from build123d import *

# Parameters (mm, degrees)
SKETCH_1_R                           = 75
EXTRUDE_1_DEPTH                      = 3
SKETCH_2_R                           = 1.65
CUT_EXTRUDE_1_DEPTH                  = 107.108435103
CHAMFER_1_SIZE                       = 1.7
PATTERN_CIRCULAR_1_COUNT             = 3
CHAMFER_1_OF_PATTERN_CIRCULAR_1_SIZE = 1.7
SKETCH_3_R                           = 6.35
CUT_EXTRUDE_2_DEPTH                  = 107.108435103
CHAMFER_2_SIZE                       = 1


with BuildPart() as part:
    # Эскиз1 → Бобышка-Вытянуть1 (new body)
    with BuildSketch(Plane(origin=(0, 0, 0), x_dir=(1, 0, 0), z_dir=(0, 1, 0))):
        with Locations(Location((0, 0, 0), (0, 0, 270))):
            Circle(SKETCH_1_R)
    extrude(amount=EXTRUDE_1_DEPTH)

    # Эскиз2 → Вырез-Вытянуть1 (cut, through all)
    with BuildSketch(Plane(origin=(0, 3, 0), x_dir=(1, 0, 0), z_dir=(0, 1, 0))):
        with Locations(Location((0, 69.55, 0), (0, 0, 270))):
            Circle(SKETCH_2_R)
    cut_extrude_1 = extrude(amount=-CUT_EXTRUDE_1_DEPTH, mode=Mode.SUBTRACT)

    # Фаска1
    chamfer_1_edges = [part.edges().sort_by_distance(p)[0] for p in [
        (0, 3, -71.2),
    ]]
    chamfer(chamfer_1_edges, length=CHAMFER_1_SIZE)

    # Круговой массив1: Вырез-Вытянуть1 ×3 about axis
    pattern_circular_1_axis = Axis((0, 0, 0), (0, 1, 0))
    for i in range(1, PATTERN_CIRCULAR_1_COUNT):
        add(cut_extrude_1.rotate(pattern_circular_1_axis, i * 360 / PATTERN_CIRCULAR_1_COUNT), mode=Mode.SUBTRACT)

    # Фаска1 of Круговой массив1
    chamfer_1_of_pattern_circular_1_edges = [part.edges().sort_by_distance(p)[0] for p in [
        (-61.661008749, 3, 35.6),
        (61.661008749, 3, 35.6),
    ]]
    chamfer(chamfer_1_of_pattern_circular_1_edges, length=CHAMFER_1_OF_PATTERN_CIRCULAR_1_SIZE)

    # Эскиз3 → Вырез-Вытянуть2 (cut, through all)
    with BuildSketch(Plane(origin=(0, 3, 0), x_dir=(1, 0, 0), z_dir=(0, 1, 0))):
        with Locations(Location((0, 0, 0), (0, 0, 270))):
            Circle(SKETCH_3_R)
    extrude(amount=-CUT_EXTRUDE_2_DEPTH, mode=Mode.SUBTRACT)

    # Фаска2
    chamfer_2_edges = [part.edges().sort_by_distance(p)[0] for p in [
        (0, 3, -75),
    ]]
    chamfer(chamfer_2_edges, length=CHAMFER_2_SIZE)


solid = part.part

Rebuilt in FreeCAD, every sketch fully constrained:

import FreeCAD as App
import Part
import Sketcher
from FreeCAD import Vector
Q = App.Units.Quantity


def edges_at(feature, points):
    """Names of the edges that pass closest to the given points."""
    edges = feature.Shape.Edges
    near = lambda p: min(range(len(edges)), key=lambda i: edges[i].distToShape(Part.Vertex(*p))[0])
    return sorted({f"Edge{near(p) + 1}" for p in points})

doc = App.newDocument("Part")
params = doc.addObject("Spreadsheet::Sheet", "Params")
for row, (alias, value) in enumerate([
    ("sketch1_diameter", "150 mm"),
    ("pad1_length", "3 mm"),
    ("sketch2_diameter", "3.3 mm"),
    ("chamfer_size", "1.7 mm"),
    ("chamfer2_size", "1.7 mm"),
    ("sketch3_diameter", "12.7 mm"),
    ("chamfer3_size", "1 mm"),
], start=1):
    params.set(f"A{row}", alias)
    params.set(f"B{row}", "=" + value)
    params.setAlias(f"B{row}", alias)

body = doc.addObject("PartDesign::Body", "Body")

# Sketch on XZ plane
sketch1 = body.newObject("Sketcher::SketchObject", "Sketch")
sketch1.AttachmentSupport = (doc.getObject("XZ_Plane"), [""])
sketch1.MapMode = "FlatFace"
sketch1.addGeometry(Part.Circle(Vector(0, 0, 0), Vector(0, 0, 1), 75), False)
sketch1.addConstraint(Sketcher.Constraint("Coincident", 0, 3, -1, 1))
sketch1.addConstraint(Sketcher.Constraint("Diameter", 0, Q("150 mm")))
sketch1.setExpression("Constraints[1]", "Params.sketch1_diameter")
pad1 = body.newObject("PartDesign::Pad", "Pad")
pad1.Profile = sketch1
pad1.setExpression("Length", "Params.pad1_length")
pad1.Reversed = True

# Sketch on XZ plane
sketch2 = body.newObject("Sketcher::SketchObject", "Sketch001")
sketch2.AttachmentSupport = (doc.getObject("XZ_Plane"), [""])
sketch2.MapMode = "FlatFace"
sketch2.AttachmentOffset = App.Placement(Vector(0, 0, -3), App.Rotation())
sketch2.addGeometry(Part.Circle(Vector(0, -69.55, 0), Vector(0, 0, 1), 1.65), False)
sketch2.addConstraint(Sketcher.Constraint("PointOnObject", 0, 3, -2))
sketch2.addConstraint(Sketcher.Constraint("Diameter", 0, Q("3.3 mm")))
sketch2.addConstraint(Sketcher.Constraint("DistanceY", 0, 3, -1, 1, Q("69.55 mm")))
sketch2.setExpression("Constraints[1]", "Params.sketch2_diameter")
pocket1 = body.newObject("PartDesign::Pocket", "Pocket")
pocket1.Profile = sketch2
pocket1.Type = "ThroughAll"
pocket1.Reversed = True
doc.recompute()

chamfer = body.newObject("PartDesign::Chamfer", "Chamfer")
chamfer.Base = (pocket1, edges_at(pocket1, [(0, 3, -71.2)]))
chamfer.setExpression("Size", "Params.chamfer_size")
doc.recompute()

polarpattern = body.newObject("PartDesign::PolarPattern", "PolarPattern")
polarpattern.Originals = [pocket1]
polarpattern.Axis = (doc.getObject("Y_Axis"), [""])
polarpattern.Angle = 360
polarpattern.Occurrences = 3
body.Tip = polarpattern
doc.recompute()

chamfer2 = body.newObject("PartDesign::Chamfer", "Chamfer001")
chamfer2.Base = (polarpattern, edges_at(polarpattern, [(-61.661, 3, 35.6), (61.661, 3, 35.6)]))
chamfer2.setExpression("Size", "Params.chamfer2_size")

# Sketch on XZ plane
sketch3 = body.newObject("Sketcher::SketchObject", "Sketch002")
sketch3.AttachmentSupport = (doc.getObject("XZ_Plane"), [""])
sketch3.MapMode = "FlatFace"
sketch3.AttachmentOffset = App.Placement(Vector(0, 0, -3), App.Rotation())
sketch3.addGeometry(Part.Circle(Vector(0, 0, 0), Vector(0, 0, 1), 6.35), False)
sketch3.addConstraint(Sketcher.Constraint("Coincident", 0, 3, -1, 1))
sketch3.addConstraint(Sketcher.Constraint("Diameter", 0, Q("12.7 mm")))
sketch3.setExpression("Constraints[1]", "Params.sketch3_diameter")
pocket2 = body.newObject("PartDesign::Pocket", "Pocket001")
pocket2.Profile = sketch3
pocket2.Type = "ThroughAll"
pocket2.Reversed = True
doc.recompute()

chamfer3 = body.newObject("PartDesign::Chamfer", "Chamfer002")
chamfer3.Base = (pocket2, edges_at(pocket2, [(0, 3, -75)]))
chamfer3.setExpression("Size", "Params.chamfer3_size")

doc.recompute()
